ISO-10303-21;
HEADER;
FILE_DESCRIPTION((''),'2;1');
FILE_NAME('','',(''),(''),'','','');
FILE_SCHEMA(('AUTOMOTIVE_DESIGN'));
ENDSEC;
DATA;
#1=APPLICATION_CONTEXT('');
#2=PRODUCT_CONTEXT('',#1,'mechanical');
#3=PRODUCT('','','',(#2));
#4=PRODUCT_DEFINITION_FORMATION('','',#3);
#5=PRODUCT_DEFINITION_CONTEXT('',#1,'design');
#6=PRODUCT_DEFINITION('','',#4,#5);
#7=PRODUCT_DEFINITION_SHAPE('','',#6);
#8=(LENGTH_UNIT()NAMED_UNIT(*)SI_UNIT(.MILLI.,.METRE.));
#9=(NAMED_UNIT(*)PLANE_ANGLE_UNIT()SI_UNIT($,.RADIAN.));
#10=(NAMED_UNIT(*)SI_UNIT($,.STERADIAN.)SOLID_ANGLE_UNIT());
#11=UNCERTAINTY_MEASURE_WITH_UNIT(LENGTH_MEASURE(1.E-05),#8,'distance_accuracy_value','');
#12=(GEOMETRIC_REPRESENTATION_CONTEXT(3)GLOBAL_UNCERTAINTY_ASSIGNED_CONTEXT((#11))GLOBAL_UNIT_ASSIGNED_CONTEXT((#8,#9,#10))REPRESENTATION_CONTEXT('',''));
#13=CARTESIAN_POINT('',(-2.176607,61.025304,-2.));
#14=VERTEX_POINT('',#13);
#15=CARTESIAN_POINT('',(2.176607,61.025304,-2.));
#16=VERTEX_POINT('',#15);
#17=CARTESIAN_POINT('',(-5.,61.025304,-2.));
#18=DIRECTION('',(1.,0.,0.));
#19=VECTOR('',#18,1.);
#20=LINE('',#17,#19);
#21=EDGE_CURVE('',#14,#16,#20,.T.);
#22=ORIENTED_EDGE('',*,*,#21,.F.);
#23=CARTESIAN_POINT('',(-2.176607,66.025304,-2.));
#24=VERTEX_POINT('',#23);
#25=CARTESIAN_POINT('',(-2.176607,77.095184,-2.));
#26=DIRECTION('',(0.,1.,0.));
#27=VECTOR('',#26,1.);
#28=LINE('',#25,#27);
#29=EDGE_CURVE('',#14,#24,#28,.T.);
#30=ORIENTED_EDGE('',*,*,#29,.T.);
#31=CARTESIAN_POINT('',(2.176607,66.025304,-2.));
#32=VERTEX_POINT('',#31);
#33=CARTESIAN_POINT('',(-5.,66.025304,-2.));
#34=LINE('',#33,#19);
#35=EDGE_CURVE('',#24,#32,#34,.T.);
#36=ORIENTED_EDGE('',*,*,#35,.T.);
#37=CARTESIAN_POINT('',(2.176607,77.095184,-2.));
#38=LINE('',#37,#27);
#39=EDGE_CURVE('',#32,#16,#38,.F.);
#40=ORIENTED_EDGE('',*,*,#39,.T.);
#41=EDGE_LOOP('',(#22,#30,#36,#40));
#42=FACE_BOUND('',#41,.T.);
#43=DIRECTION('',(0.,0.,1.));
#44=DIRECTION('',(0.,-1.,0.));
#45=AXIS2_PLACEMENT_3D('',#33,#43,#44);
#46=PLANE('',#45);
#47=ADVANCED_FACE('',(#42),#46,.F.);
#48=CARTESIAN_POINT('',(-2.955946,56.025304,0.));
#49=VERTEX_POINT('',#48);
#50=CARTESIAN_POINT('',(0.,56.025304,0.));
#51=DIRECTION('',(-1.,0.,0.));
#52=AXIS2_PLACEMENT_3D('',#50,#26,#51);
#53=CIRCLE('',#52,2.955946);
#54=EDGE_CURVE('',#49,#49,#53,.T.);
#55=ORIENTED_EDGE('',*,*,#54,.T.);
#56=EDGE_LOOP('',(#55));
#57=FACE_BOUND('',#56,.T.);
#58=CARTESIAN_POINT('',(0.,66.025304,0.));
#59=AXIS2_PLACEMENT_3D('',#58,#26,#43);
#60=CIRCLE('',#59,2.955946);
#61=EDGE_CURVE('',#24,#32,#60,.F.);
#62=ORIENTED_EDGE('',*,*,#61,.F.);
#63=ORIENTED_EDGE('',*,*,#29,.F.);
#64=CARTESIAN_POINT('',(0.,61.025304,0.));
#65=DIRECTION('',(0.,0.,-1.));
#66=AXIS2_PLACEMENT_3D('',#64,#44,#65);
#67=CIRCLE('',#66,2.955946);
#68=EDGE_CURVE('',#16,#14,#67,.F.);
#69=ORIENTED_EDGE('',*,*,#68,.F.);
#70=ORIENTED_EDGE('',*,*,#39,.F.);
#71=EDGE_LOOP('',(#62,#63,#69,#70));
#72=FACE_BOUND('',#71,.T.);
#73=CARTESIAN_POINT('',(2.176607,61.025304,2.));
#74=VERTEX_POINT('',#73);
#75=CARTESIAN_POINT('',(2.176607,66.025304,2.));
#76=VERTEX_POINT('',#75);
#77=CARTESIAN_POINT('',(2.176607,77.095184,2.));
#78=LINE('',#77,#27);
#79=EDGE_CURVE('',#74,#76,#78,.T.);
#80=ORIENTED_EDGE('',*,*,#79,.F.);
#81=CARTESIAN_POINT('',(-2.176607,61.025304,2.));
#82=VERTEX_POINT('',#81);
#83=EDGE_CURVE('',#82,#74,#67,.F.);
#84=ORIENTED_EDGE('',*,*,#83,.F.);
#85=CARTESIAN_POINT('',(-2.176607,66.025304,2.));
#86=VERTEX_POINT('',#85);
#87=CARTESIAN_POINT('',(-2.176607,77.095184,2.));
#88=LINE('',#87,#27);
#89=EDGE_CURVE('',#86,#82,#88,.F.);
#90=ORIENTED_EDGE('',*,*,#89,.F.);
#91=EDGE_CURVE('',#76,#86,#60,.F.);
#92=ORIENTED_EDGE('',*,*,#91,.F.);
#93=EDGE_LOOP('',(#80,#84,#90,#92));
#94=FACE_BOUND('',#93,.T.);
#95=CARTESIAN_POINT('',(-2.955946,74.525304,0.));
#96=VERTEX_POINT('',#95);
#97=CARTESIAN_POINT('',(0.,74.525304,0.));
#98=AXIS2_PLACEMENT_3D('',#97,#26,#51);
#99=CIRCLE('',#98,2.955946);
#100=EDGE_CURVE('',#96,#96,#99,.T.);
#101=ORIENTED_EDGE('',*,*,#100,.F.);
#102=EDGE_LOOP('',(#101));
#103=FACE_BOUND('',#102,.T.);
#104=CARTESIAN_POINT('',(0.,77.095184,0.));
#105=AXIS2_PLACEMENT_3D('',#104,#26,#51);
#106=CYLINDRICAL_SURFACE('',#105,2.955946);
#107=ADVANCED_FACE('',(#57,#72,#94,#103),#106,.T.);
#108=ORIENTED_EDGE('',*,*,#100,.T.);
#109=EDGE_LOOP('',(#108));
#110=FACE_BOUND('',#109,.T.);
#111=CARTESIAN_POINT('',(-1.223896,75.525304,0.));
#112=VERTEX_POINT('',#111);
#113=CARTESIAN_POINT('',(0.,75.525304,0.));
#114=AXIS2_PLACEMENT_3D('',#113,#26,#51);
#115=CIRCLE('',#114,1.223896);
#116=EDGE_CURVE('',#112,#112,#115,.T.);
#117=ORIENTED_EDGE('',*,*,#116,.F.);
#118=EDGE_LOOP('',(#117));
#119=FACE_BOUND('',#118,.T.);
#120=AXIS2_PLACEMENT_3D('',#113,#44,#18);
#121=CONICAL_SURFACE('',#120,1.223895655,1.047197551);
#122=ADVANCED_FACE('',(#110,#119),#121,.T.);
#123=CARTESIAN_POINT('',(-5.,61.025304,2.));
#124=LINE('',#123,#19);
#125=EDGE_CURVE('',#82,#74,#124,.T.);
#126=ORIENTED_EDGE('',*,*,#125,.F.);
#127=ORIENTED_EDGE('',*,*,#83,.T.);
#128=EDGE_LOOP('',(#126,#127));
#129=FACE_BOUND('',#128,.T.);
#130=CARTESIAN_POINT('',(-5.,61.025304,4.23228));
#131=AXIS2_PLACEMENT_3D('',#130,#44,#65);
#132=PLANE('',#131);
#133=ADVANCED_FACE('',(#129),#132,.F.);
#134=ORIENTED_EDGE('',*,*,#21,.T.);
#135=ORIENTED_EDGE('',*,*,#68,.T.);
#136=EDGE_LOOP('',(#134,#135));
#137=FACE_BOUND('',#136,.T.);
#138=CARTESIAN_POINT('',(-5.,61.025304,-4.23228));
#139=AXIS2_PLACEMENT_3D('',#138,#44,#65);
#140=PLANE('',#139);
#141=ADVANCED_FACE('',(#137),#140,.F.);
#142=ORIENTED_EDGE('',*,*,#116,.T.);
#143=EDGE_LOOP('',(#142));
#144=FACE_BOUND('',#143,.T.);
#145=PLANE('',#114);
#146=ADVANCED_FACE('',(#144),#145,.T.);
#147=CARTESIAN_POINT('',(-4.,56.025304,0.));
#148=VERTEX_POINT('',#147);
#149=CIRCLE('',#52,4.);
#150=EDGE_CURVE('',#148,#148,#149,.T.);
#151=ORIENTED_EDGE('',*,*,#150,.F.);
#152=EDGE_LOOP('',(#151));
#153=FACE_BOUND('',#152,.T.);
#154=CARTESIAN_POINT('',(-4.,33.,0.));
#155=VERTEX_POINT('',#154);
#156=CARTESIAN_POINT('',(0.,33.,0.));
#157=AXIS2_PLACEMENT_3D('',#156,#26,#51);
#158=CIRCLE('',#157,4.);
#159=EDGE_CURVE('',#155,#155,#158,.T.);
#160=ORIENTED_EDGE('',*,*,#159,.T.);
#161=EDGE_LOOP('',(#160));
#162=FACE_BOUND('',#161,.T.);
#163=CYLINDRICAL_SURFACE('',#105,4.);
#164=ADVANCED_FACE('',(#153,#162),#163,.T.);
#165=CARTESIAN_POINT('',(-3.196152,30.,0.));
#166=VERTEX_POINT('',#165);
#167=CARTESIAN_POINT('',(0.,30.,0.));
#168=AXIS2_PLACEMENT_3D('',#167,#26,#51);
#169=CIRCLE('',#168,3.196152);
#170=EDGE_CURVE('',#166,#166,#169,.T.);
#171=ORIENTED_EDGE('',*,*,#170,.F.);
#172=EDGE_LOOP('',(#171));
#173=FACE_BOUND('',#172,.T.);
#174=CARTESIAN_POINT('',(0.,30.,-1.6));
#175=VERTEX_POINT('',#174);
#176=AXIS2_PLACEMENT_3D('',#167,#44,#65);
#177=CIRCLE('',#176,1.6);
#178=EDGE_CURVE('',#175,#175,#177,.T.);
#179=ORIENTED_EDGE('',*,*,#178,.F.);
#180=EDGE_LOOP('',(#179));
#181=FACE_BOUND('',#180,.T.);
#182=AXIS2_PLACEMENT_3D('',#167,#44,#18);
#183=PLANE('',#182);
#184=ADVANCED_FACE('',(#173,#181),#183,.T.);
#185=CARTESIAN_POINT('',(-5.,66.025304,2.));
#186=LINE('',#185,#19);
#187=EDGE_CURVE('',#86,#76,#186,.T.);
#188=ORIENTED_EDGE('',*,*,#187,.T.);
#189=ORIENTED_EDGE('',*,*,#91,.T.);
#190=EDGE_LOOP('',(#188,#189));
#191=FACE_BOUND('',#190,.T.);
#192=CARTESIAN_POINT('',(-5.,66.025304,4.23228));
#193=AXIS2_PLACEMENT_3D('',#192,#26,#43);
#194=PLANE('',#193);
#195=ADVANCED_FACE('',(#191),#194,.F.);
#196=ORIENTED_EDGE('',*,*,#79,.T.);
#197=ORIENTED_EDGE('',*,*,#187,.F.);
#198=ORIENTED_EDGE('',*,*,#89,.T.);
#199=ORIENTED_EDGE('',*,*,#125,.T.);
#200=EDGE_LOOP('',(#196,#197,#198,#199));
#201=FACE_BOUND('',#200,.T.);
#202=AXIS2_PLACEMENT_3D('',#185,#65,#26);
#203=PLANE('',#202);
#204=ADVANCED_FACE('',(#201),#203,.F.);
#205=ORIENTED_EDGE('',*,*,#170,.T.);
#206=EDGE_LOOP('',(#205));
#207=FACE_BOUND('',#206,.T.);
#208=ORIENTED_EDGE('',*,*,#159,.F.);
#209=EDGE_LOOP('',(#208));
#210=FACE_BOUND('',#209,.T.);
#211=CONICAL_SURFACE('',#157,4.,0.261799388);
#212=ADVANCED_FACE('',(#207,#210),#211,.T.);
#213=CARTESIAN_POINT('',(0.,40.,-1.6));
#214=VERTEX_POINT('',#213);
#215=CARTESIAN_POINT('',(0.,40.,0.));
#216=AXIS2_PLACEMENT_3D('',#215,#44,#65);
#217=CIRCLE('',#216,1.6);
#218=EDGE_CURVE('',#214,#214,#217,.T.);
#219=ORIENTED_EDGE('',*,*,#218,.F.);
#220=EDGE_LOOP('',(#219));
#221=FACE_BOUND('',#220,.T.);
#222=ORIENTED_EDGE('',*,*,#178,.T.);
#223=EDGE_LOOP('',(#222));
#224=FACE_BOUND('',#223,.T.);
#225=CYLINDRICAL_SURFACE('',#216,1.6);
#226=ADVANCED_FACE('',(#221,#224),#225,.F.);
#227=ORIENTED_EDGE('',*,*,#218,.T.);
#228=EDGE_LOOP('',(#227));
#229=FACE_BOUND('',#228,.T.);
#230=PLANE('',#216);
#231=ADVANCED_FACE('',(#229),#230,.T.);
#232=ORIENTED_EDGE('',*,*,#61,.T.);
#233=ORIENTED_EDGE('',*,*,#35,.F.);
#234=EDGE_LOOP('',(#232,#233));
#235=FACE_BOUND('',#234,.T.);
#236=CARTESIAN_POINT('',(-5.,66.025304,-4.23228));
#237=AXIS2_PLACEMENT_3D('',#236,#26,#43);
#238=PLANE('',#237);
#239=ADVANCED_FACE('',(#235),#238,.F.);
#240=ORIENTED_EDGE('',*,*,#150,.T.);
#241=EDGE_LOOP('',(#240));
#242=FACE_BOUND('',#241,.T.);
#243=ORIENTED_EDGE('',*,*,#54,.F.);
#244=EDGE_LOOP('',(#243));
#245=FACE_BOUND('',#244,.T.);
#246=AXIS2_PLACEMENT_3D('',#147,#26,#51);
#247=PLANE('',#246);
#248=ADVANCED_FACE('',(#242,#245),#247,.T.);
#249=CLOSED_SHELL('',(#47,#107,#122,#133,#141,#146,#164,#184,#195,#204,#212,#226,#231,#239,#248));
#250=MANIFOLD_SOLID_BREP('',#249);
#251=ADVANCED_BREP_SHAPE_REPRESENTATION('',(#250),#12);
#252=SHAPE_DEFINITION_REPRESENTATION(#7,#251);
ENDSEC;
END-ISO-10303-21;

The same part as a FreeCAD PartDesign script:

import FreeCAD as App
import Part
import Sketcher

V = App.Vector
Q = App.Units.Quantity

doc = App.newDocument("Part")
body = doc.addObject("PartDesign::Body", "Body")

# Sketch on XY plane
sketch1 = body.newObject("Sketcher::SketchObject", "Sketch")
sketch1.AttachmentSupport = (doc.getObject("XY_Plane"), [""])
sketch1.MapMode = "FlatFace"
sketch1.addGeometry(Part.LineSegment(V(-3.196152, 30, 0), V(0, 30, 0)), False)
sketch1.addGeometry(Part.LineSegment(V(0, 30, 0), V(0, 75.525304, 0)), False)
sketch1.addGeometry(Part.LineSegment(V(0, 75.525304, 0), V(-1.223896, 75.525304, 0)), False)
sketch1.addGeometry(Part.LineSegment(V(-1.223896, 75.525304, 0), V(-2.955946, 74.525304, 0)), False)
sketch1.addGeometry(Part.LineSegment(V(-2.955946, 74.525304, 0), V(-2.955946, 56.025304, 0)), False)
sketch1.addGeometry(Part.LineSegment(V(-2.955946, 56.025304, 0), V(-4, 56.025304, 0)), False)
sketch1.addGeometry(Part.LineSegment(V(-4, 56.025304, 0), V(-4, 33, 0)), False)
sketch1.addGeometry(Part.LineSegment(V(-4, 33, 0), V(-3.196152, 30, 0)), False)
sketch1.addConstraint(Sketcher.Constraint("Coincident", 0, 2, 1, 1))
sketch1.addConstraint(Sketcher.Constraint("Coincident", 1, 2, 2, 1))
sketch1.addConstraint(Sketcher.Constraint("Coincident", 2, 2, 3, 1))
sketch1.addConstraint(Sketcher.Constraint("Coincident", 3, 2, 4, 1))
sketch1.addConstraint(Sketcher.Constraint("Coincident", 4, 2, 5, 1))
sketch1.addConstraint(Sketcher.Constraint("Coincident", 5, 2, 6, 1))
sketch1.addConstraint(Sketcher.Constraint("Coincident", 6, 2, 7, 1))
sketch1.addConstraint(Sketcher.Constraint("Coincident", 7, 2, 0, 1))
sketch1.addConstraint(Sketcher.Constraint("Horizontal", 0))
sketch1.addConstraint(Sketcher.Constraint("Vertical", 1))
sketch1.addConstraint(Sketcher.Constraint("Horizontal", 2))
sketch1.addConstraint(Sketcher.Constraint("Vertical", 4))
sketch1.addConstraint(Sketcher.Constraint("Horizontal", 5))
sketch1.addConstraint(Sketcher.Constraint("Vertical", 6))
sketch1.addConstraint(Sketcher.Constraint("PointOnObject", 0, 2, -2))
sketch1.addConstraint(Sketcher.Constraint("Angle", 3, Q("-150 deg")))
sketch1.addConstraint(Sketcher.Constraint("Angle", 7, Q("-75 deg")))
sketch1.addConstraint(Sketcher.Constraint("Distance", 3, Q("2 mm")))
sketch1.addConstraint(Sketcher.Constraint("DistanceY", 4, 2, 4, 1, Q("18.5 mm")))
sketch1.addConstraint(Sketcher.Constraint("DistanceY", -1, 1, 0, 2, Q("30 mm")))
sketch1.addConstraint(Sketcher.Constraint("DistanceX", 5, 2, -1, 1, Q("4 mm")))
sketch1.addConstraint(Sketcher.Constraint("DistanceY", -1, 1, 6, 2, Q("33 mm")))
sketch1.addConstraint(Sketcher.Constraint("DistanceX", 2, 2, 2, 1, Q("1.223896 mm")))
sketch1.addConstraint(Sketcher.Constraint("DistanceY", 1, 1, 1, 2, Q("45.525304 mm")))
revolution = body.newObject("PartDesign::Revolution", "Revolution")
revolution.Profile = sketch1
revolution.ReferenceAxis = (sketch1, ["V_Axis"])
revolution.Angle = 360

# Sketch on XZ plane
sketch2 = body.newObject("Sketcher::SketchObject", "Sketch001")
sketch2.AttachmentSupport = (doc.getObject("XZ_Plane"), [""])
sketch2.MapMode = "FlatFace"
sketch2.AttachmentOffset = App.Placement(V(0, 0, -30), App.Rotation())
sketch2.addGeometry(Part.Circle(V(0, 0, 0), V(0, 0, 1), 1.6), False)
sketch2.addConstraint(Sketcher.Constraint("Coincident", 0, 3, -1, 1))
sketch2.addConstraint(Sketcher.Constraint("Diameter", 0, Q("3.2 mm")))
pocket1 = body.newObject("PartDesign::Pocket", "Pocket")
pocket1.Profile = sketch2
pocket1.Length = 10

# Sketch on YZ plane
sketch3 = body.newObject("Sketcher::SketchObject", "Sketch002")
sketch3.AttachmentSupport = (doc.getObject("YZ_Plane"), [""])
sketch3.MapMode = "FlatFace"
sketch3.addGeometry(Part.LineSegment(V(66.025304, 4.23228, 0), V(61.025304, 4.23228, 0)), False)
sketch3.addGeometry(Part.LineSegment(V(61.025304, 4.23228, 0), V(61.025304, 2, 0)), False)
sketch3.addGeometry(Part.LineSegment(V(61.025304, 2, 0), V(66.025304, 2, 0)), False)
sketch3.addGeometry(Part.LineSegment(V(66.025304, 2, 0), V(66.025304, 4.23228, 0)), False)
sketch3.addGeometry(Part.LineSegment(V(66.025304, -2, 0), V(61.025304, -2, 0)), False)
sketch3.addGeometry(Part.LineSegment(V(61.025304, -2, 0), V(61.025304, -4.23228, 0)), False)
sketch3.addGeometry(Part.LineSegment(V(61.025304, -4.23228, 0), V(66.025304, -4.23228, 0)), False)
sketch3.addGeometry(Part.LineSegment(V(66.025304, -4.23228, 0), V(66.025304, -2, 0)), False)
sketch3.addConstraint(Sketcher.Constraint("Coincident", 0, 2, 1, 1))
sketch3.addConstraint(Sketcher.Constraint("Coincident", 1, 2, 2, 1))
sketch3.addConstraint(Sketcher.Constraint("Coincident", 2, 2, 3, 1))
sketch3.addConstraint(Sketcher.Constraint("Coincident", 3, 2, 0, 1))
sketch3.addConstraint(Sketcher.Constraint("Coincident", 4, 2, 5, 1))
sketch3.addConstraint(Sketcher.Constraint("Coincident", 5, 2, 6, 1))
sketch3.addConstraint(Sketcher.Constraint("Coincident", 6, 2, 7, 1))
sketch3.addConstraint(Sketcher.Constraint("Coincident", 7, 2, 4, 1))
sketch3.addConstraint(Sketcher.Constraint("Horizontal", 0))
sketch3.addConstraint(Sketcher.Constraint("Vertical", 1))
sketch3.addConstraint(Sketcher.Constraint("Horizontal", 2))
sketch3.addConstraint(Sketcher.Constraint("Vertical", 3))
sketch3.addConstraint(Sketcher.Constraint("Horizontal", 4))
sketch3.addConstraint(Sketcher.Constraint("Vertical", 5))
sketch3.addConstraint(Sketcher.Constraint("Horizontal", 6))
sketch3.addConstraint(Sketcher.Constraint("Vertical", 7))
sketch3.addConstraint(Sketcher.Constraint("Symmetric", 1, 2, 4, 2, -1))
sketch3.addConstraint(Sketcher.Constraint("Symmetric", 3, 2, 6, 2, -1))
sketch3.addConstraint(Sketcher.Constraint("DistanceX", 0, 2, 0, 1, Q("5 mm")))
sketch3.addConstraint(Sketcher.Constraint("DistanceY", -1, 1, 1, 2, Q("2 mm")))
sketch3.addConstraint(Sketcher.Constraint("DistanceY", 1, 2, 1, 1, Q("2.23228 mm")))
sketch3.addConstraint(Sketcher.Constraint("DistanceX", -1, 1, 0, 2, Q("61.025304 mm")))
pocket2 = body.newObject("PartDesign::Pocket", "Pocket001")
pocket2.Profile = sketch3
pocket2.Length = 10
pocket2.Midplane = True

doc.recompute()
